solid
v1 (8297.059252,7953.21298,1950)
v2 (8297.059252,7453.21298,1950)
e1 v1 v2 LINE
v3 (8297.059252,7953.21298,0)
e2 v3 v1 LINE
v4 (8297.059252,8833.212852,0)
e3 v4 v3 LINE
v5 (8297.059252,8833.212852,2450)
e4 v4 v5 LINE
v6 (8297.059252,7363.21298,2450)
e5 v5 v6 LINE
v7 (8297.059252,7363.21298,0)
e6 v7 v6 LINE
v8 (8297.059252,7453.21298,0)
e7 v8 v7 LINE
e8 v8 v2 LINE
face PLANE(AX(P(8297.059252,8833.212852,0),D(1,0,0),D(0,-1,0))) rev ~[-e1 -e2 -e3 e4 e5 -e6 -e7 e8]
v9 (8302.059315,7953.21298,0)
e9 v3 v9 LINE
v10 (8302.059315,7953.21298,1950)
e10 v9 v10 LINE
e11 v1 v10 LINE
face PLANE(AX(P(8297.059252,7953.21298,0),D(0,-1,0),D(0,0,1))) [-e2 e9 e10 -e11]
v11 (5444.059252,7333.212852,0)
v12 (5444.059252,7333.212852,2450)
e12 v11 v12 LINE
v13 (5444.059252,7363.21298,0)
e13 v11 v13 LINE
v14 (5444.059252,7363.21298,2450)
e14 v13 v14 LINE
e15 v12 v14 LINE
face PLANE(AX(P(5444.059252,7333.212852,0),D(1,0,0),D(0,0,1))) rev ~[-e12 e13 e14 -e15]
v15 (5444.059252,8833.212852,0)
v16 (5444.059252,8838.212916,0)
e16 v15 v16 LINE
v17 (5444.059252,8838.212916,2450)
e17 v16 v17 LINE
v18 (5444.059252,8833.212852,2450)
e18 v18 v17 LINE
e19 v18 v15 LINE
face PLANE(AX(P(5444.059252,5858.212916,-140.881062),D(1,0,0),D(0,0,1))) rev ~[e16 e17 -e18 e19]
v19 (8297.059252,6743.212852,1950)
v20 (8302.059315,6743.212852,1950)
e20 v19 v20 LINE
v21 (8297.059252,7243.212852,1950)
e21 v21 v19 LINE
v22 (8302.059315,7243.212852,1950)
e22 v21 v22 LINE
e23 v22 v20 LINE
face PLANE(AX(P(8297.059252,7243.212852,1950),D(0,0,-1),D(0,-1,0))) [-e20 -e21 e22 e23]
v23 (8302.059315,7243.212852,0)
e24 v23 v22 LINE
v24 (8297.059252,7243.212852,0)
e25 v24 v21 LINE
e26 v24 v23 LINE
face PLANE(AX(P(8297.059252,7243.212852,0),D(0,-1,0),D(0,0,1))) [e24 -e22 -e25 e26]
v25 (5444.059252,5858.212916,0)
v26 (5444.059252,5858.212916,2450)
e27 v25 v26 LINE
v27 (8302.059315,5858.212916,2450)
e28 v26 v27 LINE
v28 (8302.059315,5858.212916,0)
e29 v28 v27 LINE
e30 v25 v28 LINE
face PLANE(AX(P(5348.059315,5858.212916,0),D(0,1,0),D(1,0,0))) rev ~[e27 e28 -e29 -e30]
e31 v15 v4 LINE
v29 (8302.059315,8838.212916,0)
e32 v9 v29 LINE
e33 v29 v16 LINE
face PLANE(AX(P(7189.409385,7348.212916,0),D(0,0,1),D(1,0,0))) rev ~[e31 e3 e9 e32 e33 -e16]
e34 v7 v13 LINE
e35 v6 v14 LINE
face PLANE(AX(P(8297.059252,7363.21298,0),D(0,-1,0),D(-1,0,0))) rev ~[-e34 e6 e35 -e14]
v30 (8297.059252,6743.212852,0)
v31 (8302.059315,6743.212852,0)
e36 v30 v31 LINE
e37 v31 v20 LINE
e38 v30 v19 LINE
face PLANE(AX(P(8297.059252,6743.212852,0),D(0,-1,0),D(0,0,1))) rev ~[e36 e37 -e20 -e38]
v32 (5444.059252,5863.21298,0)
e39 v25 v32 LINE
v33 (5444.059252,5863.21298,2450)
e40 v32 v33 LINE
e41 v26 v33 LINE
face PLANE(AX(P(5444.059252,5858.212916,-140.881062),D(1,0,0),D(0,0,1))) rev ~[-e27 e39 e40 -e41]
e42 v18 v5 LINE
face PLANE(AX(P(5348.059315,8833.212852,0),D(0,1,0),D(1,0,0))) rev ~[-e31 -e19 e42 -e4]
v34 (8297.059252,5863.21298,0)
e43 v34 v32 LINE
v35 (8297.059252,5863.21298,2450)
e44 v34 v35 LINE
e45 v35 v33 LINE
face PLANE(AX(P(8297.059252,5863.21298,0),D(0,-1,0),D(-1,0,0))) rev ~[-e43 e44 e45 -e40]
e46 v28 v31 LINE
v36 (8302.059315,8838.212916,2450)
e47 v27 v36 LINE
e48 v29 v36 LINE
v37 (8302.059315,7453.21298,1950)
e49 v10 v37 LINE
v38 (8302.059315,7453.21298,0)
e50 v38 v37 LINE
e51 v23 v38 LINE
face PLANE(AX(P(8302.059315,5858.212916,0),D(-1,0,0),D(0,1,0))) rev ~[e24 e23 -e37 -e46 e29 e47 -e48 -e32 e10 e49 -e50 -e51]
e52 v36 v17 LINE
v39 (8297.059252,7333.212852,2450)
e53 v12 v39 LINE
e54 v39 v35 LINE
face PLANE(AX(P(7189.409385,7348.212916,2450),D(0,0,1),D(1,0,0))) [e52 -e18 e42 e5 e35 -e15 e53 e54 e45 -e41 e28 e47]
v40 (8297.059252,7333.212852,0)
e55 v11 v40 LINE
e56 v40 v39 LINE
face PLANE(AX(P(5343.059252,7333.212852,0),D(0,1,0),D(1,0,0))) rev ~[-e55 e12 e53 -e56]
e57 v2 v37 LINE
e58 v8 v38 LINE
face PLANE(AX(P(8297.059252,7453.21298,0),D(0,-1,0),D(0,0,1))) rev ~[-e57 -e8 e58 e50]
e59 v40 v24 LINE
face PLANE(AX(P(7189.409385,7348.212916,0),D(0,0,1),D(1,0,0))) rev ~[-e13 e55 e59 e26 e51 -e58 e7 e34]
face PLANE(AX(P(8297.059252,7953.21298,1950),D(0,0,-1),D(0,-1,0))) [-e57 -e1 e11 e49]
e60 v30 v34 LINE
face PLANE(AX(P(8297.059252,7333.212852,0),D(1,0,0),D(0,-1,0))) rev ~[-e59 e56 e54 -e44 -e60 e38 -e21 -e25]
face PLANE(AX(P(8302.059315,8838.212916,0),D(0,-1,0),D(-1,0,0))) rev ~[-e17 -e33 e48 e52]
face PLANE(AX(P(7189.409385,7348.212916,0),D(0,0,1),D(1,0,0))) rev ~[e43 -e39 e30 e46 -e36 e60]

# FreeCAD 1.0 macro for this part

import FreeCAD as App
import Part
import Sketcher
from FreeCAD import Vector
Q = App.Units.Quantity


def add_polygon(sketch, points):
    """Adds a closed chain of lines whose ends are joined by coincident constraints."""
    first, n = sketch.GeometryCount, len(points)
    for a, b in zip(points, points[1:] + points[:1]):
        sketch.addGeometry(Part.LineSegment(App.Vector(*a, 0), App.Vector(*b, 0)), False)
    for i in range(n):
        sketch.addConstraint(Sketcher.Constraint("Coincident", first + i, 2, first + (i + 1) % n, 1))

doc = App.newDocument("Part")
body = doc.addObject("PartDesign::Body", "Body")

# Sketch on XY plane
sketch1 = body.newObject("Sketcher::SketchObject", "Sketch")
sketch1.AttachmentSupport = (doc.getObject("XY_Plane"), [""])
sketch1.MapMode = "FlatFace"
add_polygon(sketch1, [(5348, 5858), (8302, 5858), (8302, 8838), (5348, 8838), (5348, 8833), (8297, 8833), (8297, 7363), (5343, 7363), (5343, 7333), (8297, 7333), (8297, 5863), (5348, 5863)])  # lines 0-11
sketch1.addConstraint([
    Sketcher.Constraint("Horizontal", 0),
    Sketcher.Constraint("Vertical", 1),
    Sketcher.Constraint("Horizontal", 2),
    Sketcher.Constraint("Vertical", 3),
    Sketcher.Constraint("Horizontal", 4),
    Sketcher.Constraint("Vertical", 5),
    Sketcher.Constraint("Horizontal", 6),
    Sketcher.Constraint("Vertical", 7),
    Sketcher.Constraint("Horizontal", 8),
    Sketcher.Constraint("Vertical", 9),
    Sketcher.Constraint("Horizontal", 10),
    Sketcher.Constraint("Vertical", 11),
    Sketcher.Constraint("Vertical", 5, 2, 8, 2),
    Sketcher.Constraint("Vertical", 3, 2, 10, 2),
    Sketcher.Constraint("Equal", 2, 6),
    Sketcher.Constraint("Equal", 5, 9),
    Sketcher.Constraint("Equal", 3, 11),
    Sketcher.Constraint("DistanceX", 0, 1, 0, 2, Q("2954 mm")),
    Sketcher.Constraint("DistanceY", 1, 1, 1, 2, Q("2980 mm")),
    Sketcher.Constraint("DistanceY", 7, 2, 3, 2, Q("1500 mm")),
    Sketcher.Constraint("DistanceY", 7, 2, 7, 1, Q("30.000128 mm")),
    Sketcher.Constraint("DistanceX", 4, 1, 4, 2, Q("2948.999937 mm")),
    Sketcher.Constraint("DistanceX", -1, 1, 4, 2, Q("8297.059252 mm")),
    Sketcher.Constraint("DistanceY", -1, 1, 5, 2, Q("7363.21298 mm")),
])
pad1 = body.newObject("PartDesign::Pad", "Pad")
pad1.Profile = sketch1
pad1.Length = 2450

# Sketch on YZ plane
sketch2 = body.newObject("Sketcher::SketchObject", "Sketch001")
sketch2.AttachmentSupport = (doc.getObject("YZ_Plane"), [""])
sketch2.MapMode = "FlatFace"
sketch2.AttachmentOffset = App.Placement(Vector(0, 0, 8297.059252), App.Rotation())
add_polygon(sketch2, [(7953, 1950), (7953, 0), (7453, 0), (7453, 1950)])  # lines 0-3
add_polygon(sketch2, [(7243, 1950), (7243, 0), (6743, 0), (6743, 1950)])  # lines 4-7
sketch2.addConstraint([
    Sketcher.Constraint("Vertical", 0),
    Sketcher.Constraint("Horizontal", 1),
    Sketcher.Constraint("Vertical", 2),
    Sketcher.Constraint("Horizontal", 3),
    Sketcher.Constraint("Vertical", 4),
    Sketcher.Constraint("Horizontal", 5),
    Sketcher.Constraint("Vertical", 6),
    Sketcher.Constraint("Horizontal", 7),
    Sketcher.Constraint("PointOnObject", 0, 2, -1),
    Sketcher.Constraint("PointOnObject", 4, 2, -1),
    Sketcher.Constraint("Horizontal", 3, 2, 6, 2),
    Sketcher.Constraint("Equal", 3, 5),
    Sketcher.Constraint("DistanceX", 1, 2, 1, 1, Q("500 mm")),
    Sketcher.Constraint("DistanceY", 0, 2, 0, 1, Q("1950 mm")),
    Sketcher.Constraint("DistanceX", -1, 1, 0, 2, Q("7953.21298 mm")),
    Sketcher.Constraint("DistanceX", -1, 1, 4, 2, Q("7243.212852 mm")),
])
pocket1 = body.newObject("PartDesign::Pocket", "Pocket")
pocket1.Profile = sketch2
pocket1.Length = 300
pocket1.Reversed = True

# Sketch on XZ plane
sketch3 = body.newObject("Sketcher::SketchObject", "Sketch002")
sketch3.AttachmentSupport = (doc.getObject("XZ_Plane"), [""])
sketch3.MapMode = "FlatFace"
sketch3.AttachmentOffset = App.Placement(Vector(0, 0, -7333.212852), App.Rotation())
add_polygon(sketch3, [(5343, 2450), (5343, 0), (5444, 0), (5444, 2450)])  # lines 0-3
sketch3.addConstraint([
    Sketcher.Constraint("Vertical", 0),
    Sketcher.Constraint("Horizontal", 1),
    Sketcher.Constraint("Vertical", 2),
    Sketcher.Constraint("Horizontal", 3),
    Sketcher.Constraint("PointOnObject", 0, 2, -1),
    Sketcher.Constraint("DistanceX", 1, 1, 1, 2, Q("101 mm")),
    Sketcher.Constraint("DistanceY", 0, 2, 0, 1, Q("2450 mm")),
    Sketcher.Constraint("DistanceX", -1, 1, 0, 2, Q("5343.059252 mm")),
])
pocket2 = body.newObject("PartDesign::Pocket", "Pocket001")
pocket2.Profile = sketch3
pocket2.Length = 460

# Sketch on XZ plane
sketch4 = body.newObject("Sketcher::SketchObject", "Sketch003")
sketch4.AttachmentSupport = (doc.getObject("XZ_Plane"), [""])
sketch4.MapMode = "FlatFace"
sketch4.AttachmentOffset = App.Placement(Vector(0, 0, -5858.212916), App.Rotation())
add_polygon(sketch4, [(5444, 2650), (5038, 2650), (5038, -210), (5444, -141)])  # lines 0-3
sketch4.addConstraint([
    Sketcher.Constraint("Horizontal", 0),
    Sketcher.Constraint("Vertical", 1),
    Sketcher.Constraint("Vertical", 3),
    Sketcher.Constraint("Distance", 2, Q("411.593389 mm")),
    Sketcher.Constraint("DistanceX", 0, 2, 0, 1, Q("405.736803 mm")),
    Sketcher.Constraint("DistanceY", 1, 2, 1, 1, Q("2859.709263 mm")),
    Sketcher.Constraint("DistanceX", -1, 1, 0, 2, Q("5038.322449 mm")),
    Sketcher.Constraint("DistanceY", 1, 2, -1, 1, Q("210.067511 mm")),
])
pocket3 = body.newObject("PartDesign::Pocket", "Pocket002")
pocket3.Profile = sketch4
pocket3.Length = 4630

doc.recompute()
